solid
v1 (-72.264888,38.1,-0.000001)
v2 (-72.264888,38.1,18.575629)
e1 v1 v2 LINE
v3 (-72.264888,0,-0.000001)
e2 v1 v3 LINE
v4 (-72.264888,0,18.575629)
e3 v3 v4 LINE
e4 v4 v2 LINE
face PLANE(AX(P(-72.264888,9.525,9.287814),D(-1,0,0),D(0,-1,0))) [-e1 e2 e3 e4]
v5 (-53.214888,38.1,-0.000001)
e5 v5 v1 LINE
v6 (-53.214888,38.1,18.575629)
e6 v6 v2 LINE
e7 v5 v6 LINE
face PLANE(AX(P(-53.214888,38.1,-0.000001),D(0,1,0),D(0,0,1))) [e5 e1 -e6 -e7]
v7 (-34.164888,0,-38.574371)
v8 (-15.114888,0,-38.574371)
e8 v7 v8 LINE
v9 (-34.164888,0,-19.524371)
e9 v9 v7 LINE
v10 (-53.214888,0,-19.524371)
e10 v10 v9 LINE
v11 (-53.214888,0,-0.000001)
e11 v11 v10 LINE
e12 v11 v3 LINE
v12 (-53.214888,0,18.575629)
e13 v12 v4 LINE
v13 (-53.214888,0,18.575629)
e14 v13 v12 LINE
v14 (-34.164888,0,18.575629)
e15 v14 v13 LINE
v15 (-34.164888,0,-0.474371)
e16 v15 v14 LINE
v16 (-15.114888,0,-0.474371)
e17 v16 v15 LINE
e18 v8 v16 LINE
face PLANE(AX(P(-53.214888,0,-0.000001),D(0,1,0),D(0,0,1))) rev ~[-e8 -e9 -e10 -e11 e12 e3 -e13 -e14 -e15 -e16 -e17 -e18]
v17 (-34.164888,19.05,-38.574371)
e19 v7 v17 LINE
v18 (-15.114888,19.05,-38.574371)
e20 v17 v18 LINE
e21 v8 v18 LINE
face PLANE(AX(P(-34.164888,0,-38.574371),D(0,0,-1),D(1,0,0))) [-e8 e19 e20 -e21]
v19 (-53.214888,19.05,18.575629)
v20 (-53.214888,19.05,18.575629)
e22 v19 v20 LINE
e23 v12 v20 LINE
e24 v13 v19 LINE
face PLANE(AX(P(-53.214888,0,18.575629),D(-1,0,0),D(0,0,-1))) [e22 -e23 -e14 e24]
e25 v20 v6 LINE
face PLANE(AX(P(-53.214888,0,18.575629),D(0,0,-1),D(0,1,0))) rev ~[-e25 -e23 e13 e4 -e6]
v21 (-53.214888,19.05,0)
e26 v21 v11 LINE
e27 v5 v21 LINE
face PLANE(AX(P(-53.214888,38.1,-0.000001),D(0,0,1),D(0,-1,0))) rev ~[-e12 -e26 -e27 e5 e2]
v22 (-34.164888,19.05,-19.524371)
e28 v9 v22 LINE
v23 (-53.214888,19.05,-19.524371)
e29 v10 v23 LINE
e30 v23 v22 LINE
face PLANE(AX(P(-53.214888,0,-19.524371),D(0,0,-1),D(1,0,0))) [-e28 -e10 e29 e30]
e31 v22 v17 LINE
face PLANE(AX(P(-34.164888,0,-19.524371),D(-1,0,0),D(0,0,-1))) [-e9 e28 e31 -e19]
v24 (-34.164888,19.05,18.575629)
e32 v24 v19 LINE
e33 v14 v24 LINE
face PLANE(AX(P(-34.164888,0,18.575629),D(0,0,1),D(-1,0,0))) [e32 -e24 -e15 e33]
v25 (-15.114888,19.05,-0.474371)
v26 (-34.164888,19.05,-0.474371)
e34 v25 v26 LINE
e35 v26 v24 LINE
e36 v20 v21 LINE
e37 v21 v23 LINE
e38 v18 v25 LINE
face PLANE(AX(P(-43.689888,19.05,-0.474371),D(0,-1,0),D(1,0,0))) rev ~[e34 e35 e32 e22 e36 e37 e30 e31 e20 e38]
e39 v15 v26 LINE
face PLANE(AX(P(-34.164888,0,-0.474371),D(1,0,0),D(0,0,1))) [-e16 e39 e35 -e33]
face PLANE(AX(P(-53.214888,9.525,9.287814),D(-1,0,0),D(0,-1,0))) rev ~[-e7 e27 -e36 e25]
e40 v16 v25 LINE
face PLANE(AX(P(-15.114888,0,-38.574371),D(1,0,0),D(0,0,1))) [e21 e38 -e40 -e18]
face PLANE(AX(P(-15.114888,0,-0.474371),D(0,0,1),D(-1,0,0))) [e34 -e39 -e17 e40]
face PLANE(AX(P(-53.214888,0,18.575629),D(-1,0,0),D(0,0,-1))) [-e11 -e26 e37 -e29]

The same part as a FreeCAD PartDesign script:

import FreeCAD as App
import Part
import Sketcher
Q = App.Units.Quantity


def add_polygon(sketch, points):
    """Adds a closed chain of lines whose ends are joined by coincident constraints."""
    first, n = sketch.GeometryCount, len(points)
    for a, b in zip(points, points[1:] + points[:1]):
        sketch.addGeometry(Part.LineSegment(App.Vector(*a, 0), App.Vector(*b, 0)), False)
    for i in range(n):
        sketch.addConstraint(Sketcher.Constraint("Coincident", first + i, 2, first + (i + 1) % n, 1))

doc = App.newDocument("Part")
body = doc.addObject("PartDesign::Body", "Body")

sketch1 = body.newObject("Sketcher::SketchObject", "Sketch")
sketch1.AttachmentSupport = (doc.getObject("XZ_Plane"), [""])
sketch1.MapMode = "FlatFace"
add_polygon(sketch1, [(-34, 19), (-53, 19), (-53, -20), (-34, -20), (-34, -39), (-15, -39), (-15, 0), (-34, 0)])
sketch1.addConstraint([
    Sketcher.Constraint("Horizontal", 0),
    Sketcher.Constraint("Vertical", 1),
    Sketcher.Constraint("Horizontal", 2),
    Sketcher.Constraint("Vertical", 3),
    Sketcher.Constraint("Horizontal", 4),
    Sketcher.Constraint("Vertical", 5),
    Sketcher.Constraint("Horizontal", 6),
    Sketcher.Constraint("Vertical", 7),
    Sketcher.Constraint("Vertical", 3, 2, 6, 2),
    Sketcher.Constraint("Equal", 2, 4),
    Sketcher.Constraint("Equal", 6, 3),
    Sketcher.Constraint("Equal", 1, 5),
    Sketcher.Constraint("DistanceY", 1, 2, 1, 1, Q("1.5 in")),
    Sketcher.Constraint("DistanceX", 0, 2, 0, 1, Q("0.75 in")),
    Sketcher.Constraint("DistanceX", 0, 2, -1, 1, Q("53.214888 mm")),
    Sketcher.Constraint("DistanceY", -1, 1, 0, 2, Q("18.575629 mm")),
])
pad1 = body.newObject("PartDesign::Pad", "Pad")
pad1.Profile = sketch1
pad1.Length = Q("0.75 in")
pad1.Reversed = True

sketch2 = body.newObject("Sketcher::SketchObject", "Sketch001")
sketch2.AttachmentSupport = (doc.getObject("YZ_Plane"), [""])
sketch2.MapMode = "FlatFace"
sketch2.AttachmentOffset = App.Placement(App.Vector(0, 0, -53.214888), App.Rotation())
add_polygon(sketch2, [(0, 0), (0, 19), (38, 19), (38, 0)])
sketch2.addConstraint([
    Sketcher.Constraint("Vertical", 0),
    Sketcher.Constraint("Horizontal", 1),
    Sketcher.Constraint("Vertical", 2),
    Sketcher.Constraint("Horizontal", 3),
    Sketcher.Constraint("Coincident", 3, 2, -1, 1),
    Sketcher.Constraint("DistanceX", 1, 1, 1, 2, Q("1.5 in")),
    Sketcher.Constraint("DistanceY", 0, 1, 0, 2, Q("18.575629 mm")),
])
pad2 = body.newObject("PartDesign::Pad", "Pad001")
pad2.Profile = sketch2
pad2.Length = Q("0.75 in")
pad2.Reversed = True

doc.recompute()
